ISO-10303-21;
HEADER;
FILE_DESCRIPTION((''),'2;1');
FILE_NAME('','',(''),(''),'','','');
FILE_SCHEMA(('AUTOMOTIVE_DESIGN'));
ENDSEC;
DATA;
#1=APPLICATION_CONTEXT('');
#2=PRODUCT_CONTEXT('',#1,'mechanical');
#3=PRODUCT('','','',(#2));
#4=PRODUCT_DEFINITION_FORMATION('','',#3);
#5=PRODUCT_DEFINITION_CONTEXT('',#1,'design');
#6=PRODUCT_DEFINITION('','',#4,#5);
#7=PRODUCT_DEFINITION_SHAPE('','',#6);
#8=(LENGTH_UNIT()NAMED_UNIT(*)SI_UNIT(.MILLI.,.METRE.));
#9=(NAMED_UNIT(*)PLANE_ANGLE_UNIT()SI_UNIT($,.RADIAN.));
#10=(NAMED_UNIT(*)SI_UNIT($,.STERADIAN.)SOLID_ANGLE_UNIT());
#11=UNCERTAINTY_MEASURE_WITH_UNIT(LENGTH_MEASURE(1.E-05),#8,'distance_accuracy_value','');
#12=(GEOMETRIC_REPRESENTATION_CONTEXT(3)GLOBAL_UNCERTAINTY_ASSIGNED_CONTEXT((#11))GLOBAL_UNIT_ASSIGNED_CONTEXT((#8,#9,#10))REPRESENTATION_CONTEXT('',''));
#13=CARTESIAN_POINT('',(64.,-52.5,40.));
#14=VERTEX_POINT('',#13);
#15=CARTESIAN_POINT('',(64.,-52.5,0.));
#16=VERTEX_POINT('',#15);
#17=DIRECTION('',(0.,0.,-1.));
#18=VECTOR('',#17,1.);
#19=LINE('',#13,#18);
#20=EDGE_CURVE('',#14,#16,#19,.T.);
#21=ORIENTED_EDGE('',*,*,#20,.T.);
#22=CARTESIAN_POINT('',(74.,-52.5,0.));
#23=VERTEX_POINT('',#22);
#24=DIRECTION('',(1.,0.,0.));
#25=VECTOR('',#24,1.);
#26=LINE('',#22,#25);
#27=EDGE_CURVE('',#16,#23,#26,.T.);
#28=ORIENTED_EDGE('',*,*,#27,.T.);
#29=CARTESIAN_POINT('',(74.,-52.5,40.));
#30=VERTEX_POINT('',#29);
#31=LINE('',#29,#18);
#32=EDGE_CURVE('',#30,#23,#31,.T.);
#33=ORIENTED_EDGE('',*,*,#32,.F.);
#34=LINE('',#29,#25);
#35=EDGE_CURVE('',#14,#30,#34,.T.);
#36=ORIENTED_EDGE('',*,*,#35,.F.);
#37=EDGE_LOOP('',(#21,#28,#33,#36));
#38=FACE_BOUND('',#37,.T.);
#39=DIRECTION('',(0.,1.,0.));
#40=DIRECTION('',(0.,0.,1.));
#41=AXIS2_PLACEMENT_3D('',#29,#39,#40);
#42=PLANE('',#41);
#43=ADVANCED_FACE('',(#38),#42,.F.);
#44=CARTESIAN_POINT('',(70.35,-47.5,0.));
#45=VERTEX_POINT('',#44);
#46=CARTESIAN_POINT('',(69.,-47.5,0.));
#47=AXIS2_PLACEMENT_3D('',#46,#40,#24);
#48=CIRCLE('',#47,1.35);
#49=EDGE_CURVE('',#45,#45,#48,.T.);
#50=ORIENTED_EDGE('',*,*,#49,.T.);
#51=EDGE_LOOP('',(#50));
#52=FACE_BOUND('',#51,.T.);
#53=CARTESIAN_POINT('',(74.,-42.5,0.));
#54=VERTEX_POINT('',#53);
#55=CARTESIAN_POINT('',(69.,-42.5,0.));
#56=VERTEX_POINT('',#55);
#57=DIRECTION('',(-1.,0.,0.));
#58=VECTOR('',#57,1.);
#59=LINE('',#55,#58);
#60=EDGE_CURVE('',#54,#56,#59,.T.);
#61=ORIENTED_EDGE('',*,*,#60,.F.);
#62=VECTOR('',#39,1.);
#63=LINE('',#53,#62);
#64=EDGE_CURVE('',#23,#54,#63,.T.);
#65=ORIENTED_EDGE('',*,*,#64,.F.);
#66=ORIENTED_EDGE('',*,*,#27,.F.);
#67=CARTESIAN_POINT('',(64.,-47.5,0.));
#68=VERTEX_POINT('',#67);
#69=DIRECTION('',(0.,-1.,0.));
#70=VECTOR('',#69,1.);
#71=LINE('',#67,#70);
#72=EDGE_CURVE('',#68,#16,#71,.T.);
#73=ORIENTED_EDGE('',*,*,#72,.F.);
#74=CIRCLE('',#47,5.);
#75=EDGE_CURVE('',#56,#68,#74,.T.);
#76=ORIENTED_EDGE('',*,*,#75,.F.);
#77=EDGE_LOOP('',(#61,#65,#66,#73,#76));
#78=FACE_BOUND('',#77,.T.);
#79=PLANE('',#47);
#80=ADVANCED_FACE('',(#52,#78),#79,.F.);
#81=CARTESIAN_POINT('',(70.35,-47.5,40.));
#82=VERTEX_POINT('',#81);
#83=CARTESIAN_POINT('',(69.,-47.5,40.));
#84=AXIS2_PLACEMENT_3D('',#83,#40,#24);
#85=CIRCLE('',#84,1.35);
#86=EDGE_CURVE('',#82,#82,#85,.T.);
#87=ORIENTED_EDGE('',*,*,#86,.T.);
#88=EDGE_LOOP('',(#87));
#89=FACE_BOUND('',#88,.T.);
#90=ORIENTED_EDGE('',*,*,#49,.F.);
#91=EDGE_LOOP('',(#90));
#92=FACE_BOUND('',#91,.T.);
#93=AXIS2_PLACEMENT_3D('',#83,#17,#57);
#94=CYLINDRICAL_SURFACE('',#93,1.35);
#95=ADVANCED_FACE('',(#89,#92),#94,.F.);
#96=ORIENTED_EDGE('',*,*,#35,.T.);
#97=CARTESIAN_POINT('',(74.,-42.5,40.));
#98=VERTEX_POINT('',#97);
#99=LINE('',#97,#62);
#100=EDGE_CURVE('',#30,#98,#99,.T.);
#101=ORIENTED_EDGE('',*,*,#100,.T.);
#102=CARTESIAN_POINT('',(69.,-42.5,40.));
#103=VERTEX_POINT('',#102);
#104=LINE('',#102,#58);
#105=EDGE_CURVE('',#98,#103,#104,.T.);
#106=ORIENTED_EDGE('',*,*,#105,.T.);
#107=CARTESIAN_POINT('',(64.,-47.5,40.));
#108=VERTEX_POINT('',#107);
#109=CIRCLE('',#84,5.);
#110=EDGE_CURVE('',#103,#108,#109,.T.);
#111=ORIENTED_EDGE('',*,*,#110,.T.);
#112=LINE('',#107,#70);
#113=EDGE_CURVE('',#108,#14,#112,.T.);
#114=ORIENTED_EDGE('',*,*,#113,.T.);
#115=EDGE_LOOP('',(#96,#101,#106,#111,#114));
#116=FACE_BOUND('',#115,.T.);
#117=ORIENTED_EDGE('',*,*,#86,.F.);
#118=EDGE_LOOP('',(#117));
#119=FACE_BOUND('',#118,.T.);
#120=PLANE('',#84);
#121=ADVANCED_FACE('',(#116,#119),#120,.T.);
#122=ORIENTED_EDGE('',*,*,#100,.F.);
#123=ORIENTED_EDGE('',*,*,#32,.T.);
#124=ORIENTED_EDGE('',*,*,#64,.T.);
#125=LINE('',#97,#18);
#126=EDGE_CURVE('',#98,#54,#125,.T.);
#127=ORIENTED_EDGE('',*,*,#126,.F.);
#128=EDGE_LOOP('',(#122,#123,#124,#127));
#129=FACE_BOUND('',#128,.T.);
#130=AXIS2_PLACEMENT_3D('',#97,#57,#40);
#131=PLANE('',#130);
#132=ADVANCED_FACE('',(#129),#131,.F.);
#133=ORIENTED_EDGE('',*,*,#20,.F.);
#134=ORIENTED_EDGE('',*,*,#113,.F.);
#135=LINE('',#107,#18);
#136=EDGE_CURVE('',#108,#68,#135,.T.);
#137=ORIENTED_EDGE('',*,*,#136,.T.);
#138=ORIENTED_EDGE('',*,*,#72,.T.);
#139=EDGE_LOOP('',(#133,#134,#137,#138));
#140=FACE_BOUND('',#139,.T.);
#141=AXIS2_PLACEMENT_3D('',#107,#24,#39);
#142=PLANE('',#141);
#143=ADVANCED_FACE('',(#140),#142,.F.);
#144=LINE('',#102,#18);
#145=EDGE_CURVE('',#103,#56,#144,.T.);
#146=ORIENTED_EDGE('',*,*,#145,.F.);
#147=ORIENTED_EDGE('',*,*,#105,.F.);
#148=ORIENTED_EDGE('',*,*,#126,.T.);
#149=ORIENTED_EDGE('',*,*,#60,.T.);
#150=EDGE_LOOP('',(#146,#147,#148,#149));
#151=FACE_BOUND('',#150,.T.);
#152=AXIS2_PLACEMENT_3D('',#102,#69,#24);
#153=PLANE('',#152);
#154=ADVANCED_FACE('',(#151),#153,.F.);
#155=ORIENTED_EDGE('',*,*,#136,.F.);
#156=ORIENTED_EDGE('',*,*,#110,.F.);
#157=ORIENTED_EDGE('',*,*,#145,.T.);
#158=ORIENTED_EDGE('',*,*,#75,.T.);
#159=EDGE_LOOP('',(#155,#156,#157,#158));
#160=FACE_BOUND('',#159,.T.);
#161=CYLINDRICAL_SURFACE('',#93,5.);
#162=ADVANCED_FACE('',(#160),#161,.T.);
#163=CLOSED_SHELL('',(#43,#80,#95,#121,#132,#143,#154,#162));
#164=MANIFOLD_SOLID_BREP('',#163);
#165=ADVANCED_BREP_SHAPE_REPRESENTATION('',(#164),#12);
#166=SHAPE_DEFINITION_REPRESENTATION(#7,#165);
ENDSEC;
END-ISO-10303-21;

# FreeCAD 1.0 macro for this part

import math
import FreeCAD as App
import Part
import Sketcher

V = App.Vector
Q = App.Units.Quantity

doc = App.newDocument("Part")
params = doc.addObject("Spreadsheet::Sheet", "Params")
for row, (alias, value) in enumerate([
    ("sketch1_radius", "5 mm"),
    ("sketch1_diameter", "2.7 mm"),
    ("sketch1_width", "5 mm"),
    ("pad1_length", "40 mm"),
], start=1):
    params.set(f"A{row}", alias)
    params.set(f"B{row}", "=" + value)
    params.setAlias(f"B{row}", alias)

body = doc.addObject("PartDesign::Body", "Body")

# Sketch on XY plane
sketch1 = body.newObject("Sketcher::SketchObject", "Sketch")
sketch1.AttachmentSupport = (doc.getObject("XY_Plane"), [""])
sketch1.MapMode = "FlatFace"
sketch1.addGeometry(Part.LineSegment(V(74, -42.5, 0), V(69, -42.5, 0)), False)
sketch1.addGeometry(Part.ArcOfCircle(Part.Circle(V(69, -47.5, 0), V(0, 0, 1), 5), math.radians(90), math.radians(180)), False)
sketch1.addGeometry(Part.LineSegment(V(64, -47.5, 0), V(64, -52.5, 0)), False)
sketch1.addGeometry(Part.LineSegment(V(64, -52.5, 0), V(74, -52.5, 0)), False)
sketch1.addGeometry(Part.LineSegment(V(74, -52.5, 0), V(74, -42.5, 0)), False)
sketch1.addGeometry(Part.Circle(V(69, -47.5, 0), V(0, 0, 1), 1.4), False)
sketch1.addConstraint(Sketcher.Constraint("Tangent", 0, 2, 1, 1))
sketch1.addConstraint(Sketcher.Constraint("Tangent", 1, 2, 2, 1))
sketch1.addConstraint(Sketcher.Constraint("Coincident", 2, 2, 3, 1))
sketch1.addConstraint(Sketcher.Constraint("Coincident", 3, 2, 4, 1))
sketch1.addConstraint(Sketcher.Constraint("Coincident", 4, 2, 0, 1))
sketch1.addConstraint(Sketcher.Constraint("Horizontal", 0))
sketch1.addConstraint(Sketcher.Constraint("Vertical", 2))
sketch1.addConstraint(Sketcher.Constraint("Horizontal", 3))
sketch1.addConstraint(Sketcher.Constraint("Vertical", 4))
sketch1.addConstraint(Sketcher.Constraint("Coincident", 5, 3, 1, 3))
sketch1.addConstraint(Sketcher.Constraint("Equal", 0, 2))
sketch1.addConstraint(Sketcher.Constraint("Radius", 1, Q("5 mm")))
sketch1.addConstraint(Sketcher.Constraint("Diameter", 5, Q("2.7 mm")))
sketch1.addConstraint(Sketcher.Constraint("DistanceX", 0, 2, 0, 1, Q("5 mm")))
sketch1.addConstraint(Sketcher.Constraint("DistanceX", -1, 1, 1, 3, Q("69 mm")))
sketch1.addConstraint(Sketcher.Constraint("DistanceY", 1, 3, -1, 1, Q("47.5 mm")))
sketch1.setExpression("Constraints[11]", "Params.sketch1_radius")
sketch1.setExpression("Constraints[12]", "Params.sketch1_diameter")
sketch1.setExpression("Constraints[13]", "Params.sketch1_width")
pad1 = body.newObject("PartDesign::Pad", "Pad")
pad1.Profile = sketch1
pad1.setExpression("Length", "Params.pad1_length")

doc.recompute()
